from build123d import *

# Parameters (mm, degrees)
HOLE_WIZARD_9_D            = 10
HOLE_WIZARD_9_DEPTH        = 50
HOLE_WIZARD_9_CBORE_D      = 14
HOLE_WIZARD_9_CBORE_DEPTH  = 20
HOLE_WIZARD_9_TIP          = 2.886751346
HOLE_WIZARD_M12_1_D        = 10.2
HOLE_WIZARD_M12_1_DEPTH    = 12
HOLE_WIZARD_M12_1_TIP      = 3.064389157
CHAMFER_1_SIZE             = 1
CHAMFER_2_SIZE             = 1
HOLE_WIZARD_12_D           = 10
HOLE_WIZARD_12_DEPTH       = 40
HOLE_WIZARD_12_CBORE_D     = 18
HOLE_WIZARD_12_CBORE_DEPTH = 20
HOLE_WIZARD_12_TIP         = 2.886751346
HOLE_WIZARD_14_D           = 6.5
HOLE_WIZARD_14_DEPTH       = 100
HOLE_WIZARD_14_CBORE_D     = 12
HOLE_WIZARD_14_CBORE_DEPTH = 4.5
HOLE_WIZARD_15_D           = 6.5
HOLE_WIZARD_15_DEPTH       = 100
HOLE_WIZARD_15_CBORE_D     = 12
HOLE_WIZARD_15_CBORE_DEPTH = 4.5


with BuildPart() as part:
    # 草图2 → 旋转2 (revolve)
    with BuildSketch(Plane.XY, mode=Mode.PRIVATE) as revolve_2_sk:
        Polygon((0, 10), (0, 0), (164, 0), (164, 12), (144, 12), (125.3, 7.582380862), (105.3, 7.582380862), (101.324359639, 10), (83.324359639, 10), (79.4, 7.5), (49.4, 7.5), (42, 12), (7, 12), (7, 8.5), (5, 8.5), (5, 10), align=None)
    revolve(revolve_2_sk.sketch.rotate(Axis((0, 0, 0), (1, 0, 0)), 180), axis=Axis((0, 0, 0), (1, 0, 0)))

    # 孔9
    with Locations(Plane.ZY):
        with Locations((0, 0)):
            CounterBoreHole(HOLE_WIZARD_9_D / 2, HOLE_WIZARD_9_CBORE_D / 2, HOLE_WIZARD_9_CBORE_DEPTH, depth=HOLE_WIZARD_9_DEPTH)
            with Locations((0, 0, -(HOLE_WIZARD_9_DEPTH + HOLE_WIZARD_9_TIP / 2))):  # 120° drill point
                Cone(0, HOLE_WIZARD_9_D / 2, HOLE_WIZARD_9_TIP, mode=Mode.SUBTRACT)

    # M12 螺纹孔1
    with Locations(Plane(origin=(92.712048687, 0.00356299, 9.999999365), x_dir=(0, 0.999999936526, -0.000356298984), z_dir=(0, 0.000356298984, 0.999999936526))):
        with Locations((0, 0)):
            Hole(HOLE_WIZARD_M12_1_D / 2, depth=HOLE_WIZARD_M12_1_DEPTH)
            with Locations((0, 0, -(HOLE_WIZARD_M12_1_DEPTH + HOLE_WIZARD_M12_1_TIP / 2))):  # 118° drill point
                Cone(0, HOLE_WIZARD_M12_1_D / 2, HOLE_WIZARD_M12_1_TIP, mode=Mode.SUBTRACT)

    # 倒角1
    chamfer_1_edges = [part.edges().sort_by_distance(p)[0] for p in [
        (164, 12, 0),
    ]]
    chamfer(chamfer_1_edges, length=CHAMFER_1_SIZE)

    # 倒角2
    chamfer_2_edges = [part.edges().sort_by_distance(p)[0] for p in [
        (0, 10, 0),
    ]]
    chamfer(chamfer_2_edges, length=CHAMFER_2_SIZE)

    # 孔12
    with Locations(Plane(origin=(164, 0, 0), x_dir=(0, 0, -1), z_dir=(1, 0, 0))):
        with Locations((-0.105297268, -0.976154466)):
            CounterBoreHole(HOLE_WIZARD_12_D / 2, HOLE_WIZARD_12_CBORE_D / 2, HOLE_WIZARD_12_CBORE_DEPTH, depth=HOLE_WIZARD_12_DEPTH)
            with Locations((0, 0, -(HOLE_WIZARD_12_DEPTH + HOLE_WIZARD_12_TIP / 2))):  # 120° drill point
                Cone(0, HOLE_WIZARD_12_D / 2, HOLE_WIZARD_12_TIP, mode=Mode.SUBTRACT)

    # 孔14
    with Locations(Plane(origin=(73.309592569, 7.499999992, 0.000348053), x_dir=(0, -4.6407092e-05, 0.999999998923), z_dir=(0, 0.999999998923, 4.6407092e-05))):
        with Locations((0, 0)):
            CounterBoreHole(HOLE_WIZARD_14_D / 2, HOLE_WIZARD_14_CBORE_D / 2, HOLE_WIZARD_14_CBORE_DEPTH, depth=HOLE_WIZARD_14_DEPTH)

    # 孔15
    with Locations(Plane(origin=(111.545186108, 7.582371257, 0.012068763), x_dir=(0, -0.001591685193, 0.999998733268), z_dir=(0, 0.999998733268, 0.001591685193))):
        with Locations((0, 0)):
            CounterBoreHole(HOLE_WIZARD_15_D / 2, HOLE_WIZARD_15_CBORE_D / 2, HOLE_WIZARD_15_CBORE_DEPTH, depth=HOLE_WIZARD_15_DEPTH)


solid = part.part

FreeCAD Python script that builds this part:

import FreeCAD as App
import Part
import Sketcher
Q = App.Units.Quantity


def edges_at(feature, points):
    """Names of the edges that pass closest to the given points."""
    edges = feature.Shape.Edges
    near = lambda p: min(range(len(edges)), key=lambda i: edges[i].distToShape(Part.Vertex(*p))[0])
    return sorted({f"Edge{near(p) + 1}" for p in points})

doc = App.newDocument("Part")
params = doc.addObject("Spreadsheet::Sheet", "Params")
for row, (alias, value) in enumerate([
    ("sketch1_width", "164 mm"),
    ("sketch1_width2", "20 mm"),
    ("sketch1_width3", "18 mm"),
    ("sketch1_width4", "30 mm"),
    ("sketch1_width5", "35 mm"),
    ("revolution_angle", "360 deg"),
    ("sketch2_diameter", "10 mm"),
    ("hole_diameter", "10 mm"),
    ("hole_depth", "50 mm"),
    ("hole_cbore_diameter", "14 mm"),
    ("hole_cbore_depth", "20 mm"),
    ("sketch3_diameter", "10.2 mm"),
    ("hole2_diameter", "10.2 mm"),
    ("hole2_depth", "12 mm"),
    ("chamfer_size", "1 mm"),
    ("chamfer2_size", "1 mm"),
    ("sketch4_diameter", "10 mm"),
    ("hole3_diameter", "10 mm"),
    ("hole3_depth", "40 mm"),
    ("hole3_cbore_diameter", "18 mm"),
    ("hole3_cbore_depth", "20 mm"),
    ("sketch5_diameter", "6.5 mm"),
    ("hole4_diameter", "6.5 mm"),
    ("hole4_depth", "100 mm"),
    ("hole4_cbore_diameter", "12 mm"),
    ("hole4_cbore_depth", "4.5 mm"),
    ("sketch6_diameter", "6.5 mm"),
    ("hole5_diameter", "6.5 mm"),
    ("hole5_depth", "100 mm"),
    ("hole5_cbore_diameter", "12 mm"),
    ("hole5_cbore_depth", "4.5 mm"),
], start=1):
    params.set(f"A{row}", alias)
    params.set(f"B{row}", "=" + value)
    params.setAlias(f"B{row}", alias)

body = doc.addObject("PartDesign::Body", "Body")

sketch1 = body.newObject("Sketcher::SketchObject", "Sketch")
sketch1.AttachmentSupport = (doc.getObject("XY_Plane"), [""])
sketch1.MapMode = "FlatFace"
sketch1.addGeometry([
    Part.LineSegment(App.Vector(0, 10, 0), App.Vector(0, 0, 0)),
    Part.LineSegment(App.Vector(0, 0, 0), App.Vector(164, 0, 0)),
    Part.LineSegment(App.Vector(164, 0, 0), App.Vector(164, 12, 0)),
    Part.LineSegment(App.Vector(164, 12, 0), App.Vector(144, 12, 0)),
    Part.LineSegment(App.Vector(144, 12, 0), App.Vector(125.3, 7.582381, 0)),
    Part.LineSegment(App.Vector(125.3, 7.582381, 0), App.Vector(105.3, 7.582381, 0)),
    Part.LineSegment(App.Vector(105.3, 7.582381, 0), App.Vector(101.32436, 10, 0)),
    Part.LineSegment(App.Vector(101.32436, 10, 0), App.Vector(83.32436, 10, 0)),
    Part.LineSegment(App.Vector(83.32436, 10, 0), App.Vector(79.4, 7.5, 0)),
    Part.LineSegment(App.Vector(79.4, 7.5, 0), App.Vector(49.4, 7.5, 0)),
    Part.LineSegment(App.Vector(49.4, 7.5, 0), App.Vector(42, 12, 0)),
    Part.LineSegment(App.Vector(42, 12, 0), App.Vector(7, 12, 0)),
    Part.LineSegment(App.Vector(7, 12, 0), App.Vector(7, 8.5, 0)),
    Part.LineSegment(App.Vector(7, 8.5, 0), App.Vector(5, 8.5, 0)),
    Part.LineSegment(App.Vector(5, 8.5, 0), App.Vector(5, 10, 0)),
    Part.LineSegment(App.Vector(5, 10, 0), App.Vector(0, 10, 0)),
], False)
sketch1.addConstraint([
    Sketcher.Constraint("Coincident", 0, 2, 1, 1),
    Sketcher.Constraint("Coincident", 1, 2, 2, 1),
    Sketcher.Constraint("Coincident", 2, 2, 3, 1),
    Sketcher.Constraint("Coincident", 3, 2, 4, 1),
    Sketcher.Constraint("Coincident", 4, 2, 5, 1),
    Sketcher.Constraint("Coincident", 5, 2, 6, 1),
    Sketcher.Constraint("Coincident", 6, 2, 7, 1),
    Sketcher.Constraint("Coincident", 7, 2, 8, 1),
    Sketcher.Constraint("Coincident", 8, 2, 9, 1),
    Sketcher.Constraint("Coincident", 9, 2, 10, 1),
    Sketcher.Constraint("Coincident", 10, 2, 11, 1),
    Sketcher.Constraint("Coincident", 11, 2, 12, 1),
    Sketcher.Constraint("Coincident", 12, 2, 13, 1),
    Sketcher.Constraint("Coincident", 13, 2, 14, 1),
    Sketcher.Constraint("Coincident", 14, 2, 15, 1),
    Sketcher.Constraint("Coincident", 15, 2, 0, 1),
    Sketcher.Constraint("Vertical", 0),
    Sketcher.Constraint("Horizontal", 1),
    Sketcher.Constraint("Vertical", 2),
    Sketcher.Constraint("Horizontal", 3),
    Sketcher.Constraint("Horizontal", 5),
    Sketcher.Constraint("Horizontal", 7),
    Sketcher.Constraint("Horizontal", 9),
    Sketcher.Constraint("Horizontal", 11),
    Sketcher.Constraint("Vertical", 12),
    Sketcher.Constraint("Horizontal", 13),
    Sketcher.Constraint("Vertical", 14),
    Sketcher.Constraint("Horizontal", 15),
    Sketcher.Constraint("Coincident", 0, 2, -1, 1),
    Sketcher.Constraint("Parallel", 6, 10),
    Sketcher.Constraint("Horizontal", 3, 2, 10, 2),
    Sketcher.Constraint("Horizontal", 7, 2, 14, 2),
    Sketcher.Constraint("Equal", 3, 5),
    Sketcher.Constraint("Equal", 6, 8),
    Sketcher.Constraint("DistanceX", 1, 1, 1, 2, Q("164 mm")),
    Sketcher.Constraint("DistanceX", 3, 2, 3, 1, Q("20 mm")),
    Sketcher.Constraint("DistanceX", 7, 2, 7, 1, Q("18 mm")),
    Sketcher.Constraint("DistanceX", 9, 2, 9, 1, Q("30 mm")),
    Sketcher.Constraint("DistanceX", 11, 2, 11, 1, Q("35 mm")),
    Sketcher.Constraint("DistanceX", 13, 2, 13, 1, Q("2 mm")),
    Sketcher.Constraint("DistanceX", 15, 2, 15, 1, Q("5 mm")),
    Sketcher.Constraint("DistanceY", 0, 2, 0, 1, Q("10 mm")),
    Sketcher.Constraint("DistanceY", 2, 1, 2, 2, Q("12 mm")),
    Sketcher.Constraint("DistanceY", 12, 2, 12, 1, Q("3.5 mm")),
    Sketcher.Constraint("DistanceY", 9, 2, 12, 2, Q("1 mm")),
    Sketcher.Constraint("DistanceX", -1, 1, 4, 2, Q("125.3 mm")),
    Sketcher.Constraint("DistanceX", -1, 1, 8, 2, Q("79.4 mm")),
])
sketch1.setExpression("Constraints[34]", "Params.sketch1_width")
sketch1.setExpression("Constraints[35]", "Params.sketch1_width2")
sketch1.setExpression("Constraints[36]", "Params.sketch1_width3")
sketch1.setExpression("Constraints[37]", "Params.sketch1_width4")
sketch1.setExpression("Constraints[38]", "Params.sketch1_width5")
revolution = body.newObject("PartDesign::Revolution", "Revolution")
revolution.Profile = sketch1
revolution.ReferenceAxis = (sketch1, ["H_Axis"])
revolution.setExpression("Angle", "Params.revolution_angle")

sketch2 = body.newObject("Sketcher::SketchObject", "Sketch001")
sketch2.AttachmentSupport = (doc.getObject("YZ_Plane"), [""])
sketch2.MapMode = "FlatFace"
sketch2.addGeometry(Part.Circle(App.Vector(0, 0, 0), App.Vector(0, 0, 1), 5), False)
sketch2.addConstraint([
    Sketcher.Constraint("Coincident", 0, 3, -1, 1),
    Sketcher.Constraint("Diameter", 0, Q("10 mm")),
])
sketch2.setExpression("Constraints[1]", "Params.sketch2_diameter")
doc.recompute()
hole = body.newObject("PartDesign::Hole", "Hole")
hole.Profile = sketch2
hole.ThreadType = "None"
hole.setExpression("Diameter", "Params.hole_diameter")
hole.DepthType = "Dimension"
hole.setExpression("Depth", "Params.hole_depth")
hole.DrillPoint = "Angled"
hole.DrillPointAngle = 120
hole.HoleCutType = "Counterbore"
hole.setExpression("HoleCutDiameter", "Params.hole_cbore_diameter")
hole.setExpression("HoleCutDepth", "Params.hole_cbore_depth")
hole.Reversed = True

sketch3 = body.newObject("Sketcher::SketchObject", "Sketch002")
sketch3.Placement = App.Placement(App.Vector(0, 0.003563, 9.999999), App.Rotation(App.Vector(0, 0.999999937, -0.000356299), App.Vector(-1.000000001, 0, 0), App.Vector(0, 0.000356299, 0.999999937), "ZXY"))
sketch3.addGeometry(Part.Circle(App.Vector(0, -92.712049, 0), App.Vector(0, 0, 1), 5.1), False)
sketch3.addConstraint([
    Sketcher.Constraint("PointOnObject", 0, 3, -2),
    Sketcher.Constraint("Diameter", 0, Q("10.2 mm")),
    Sketcher.Constraint("DistanceY", 0, 3, -1, 1, Q("92.712049 mm")),
])
sketch3.setExpression("Constraints[1]", "Params.sketch3_diameter")
doc.recompute()
hole2 = body.newObject("PartDesign::Hole", "Hole001")
hole2.Profile = sketch3
hole2.ThreadType = "None"
hole2.setExpression("Diameter", "Params.hole2_diameter")
hole2.DepthType = "Dimension"
hole2.setExpression("Depth", "Params.hole2_depth")
hole2.DrillPoint = "Angled"
hole2.DrillPointAngle = 118
doc.recompute()

chamfer = body.newObject("PartDesign::Chamfer", "Chamfer")
chamfer.Base = (hole2, edges_at(hole2, [(164, 12, 0)]))
chamfer.setExpression("Size", "Params.chamfer_size")
doc.recompute()

chamfer2 = body.newObject("PartDesign::Chamfer", "Chamfer001")
chamfer2.Base = (chamfer, edges_at(chamfer, [(0, 10, 0)]))
chamfer2.setExpression("Size", "Params.chamfer2_size")

sketch4 = body.newObject("Sketcher::SketchObject", "Sketch003")
sketch4.AttachmentSupport = (doc.getObject("YZ_Plane"), [""])
sketch4.MapMode = "FlatFace"
sketch4.AttachmentOffset = App.Placement(App.Vector(0, 0, 164), App.Rotation())
sketch4.addGeometry(Part.Circle(App.Vector(-0.976154, 0.105297, 0), App.Vector(0, 0, 1), 5), False)
sketch4.addConstraint([
    Sketcher.Constraint("Diameter", 0, Q("10 mm")),
    Sketcher.Constraint("DistanceX", 0, 3, -1, 1, Q("0.976154 mm")),
    Sketcher.Constraint("DistanceY", -1, 1, 0, 3, Q("0.105297 mm")),
])
sketch4.setExpression("Constraints[0]", "Params.sketch4_diameter")
doc.recompute()
hole3 = body.newObject("PartDesign::Hole", "Hole002")
hole3.Profile = sketch4
hole3.ThreadType = "None"
hole3.setExpression("Diameter", "Params.hole3_diameter")
hole3.DepthType = "Dimension"
hole3.setExpression("Depth", "Params.hole3_depth")
hole3.DrillPoint = "Angled"
hole3.DrillPointAngle = 120
hole3.HoleCutType = "Counterbore"
hole3.setExpression("HoleCutDiameter", "Params.hole3_cbore_diameter")
hole3.setExpression("HoleCutDepth", "Params.hole3_cbore_depth")

sketch5 = body.newObject("Sketcher::SketchObject", "Sketch004")
sketch5.AttachmentSupport = (doc.getObject("XZ_Plane"), [""])
sketch5.MapMode = "FlatFace"
sketch5.AttachmentOffset = App.Placement(App.Vector(0, 0, -7.5), App.Rotation())
sketch5.addGeometry(Part.Circle(App.Vector(73.309593, 0.000348, 0), App.Vector(0, 0, 1), 3.25), False)
sketch5.addConstraint([
    Sketcher.Constraint("Diameter", 0, Q("6.5 mm")),
    Sketcher.Constraint("DistanceY", -1, 1, 0, 3, Q("0.000348 mm")),
    Sketcher.Constraint("DistanceX", -1, 1, 0, 3, Q("73.309593 mm")),
])
sketch5.setExpression("Constraints[0]", "Params.sketch5_diameter")
doc.recompute()
hole4 = body.newObject("PartDesign::Hole", "Hole003")
hole4.Profile = sketch5
hole4.ThreadType = "None"
hole4.setExpression("Diameter", "Params.hole4_diameter")
hole4.DepthType = "Dimension"
hole4.setExpression("Depth", "Params.hole4_depth")
hole4.DrillPoint = "Flat"
hole4.HoleCutType = "Counterbore"
hole4.setExpression("HoleCutDiameter", "Params.hole4_cbore_diameter")
hole4.setExpression("HoleCutDepth", "Params.hole4_cbore_depth")
hole4.Reversed = True

sketch6 = body.newObject("Sketcher::SketchObject", "Sketch005")
sketch6.Placement = App.Placement(App.Vector(0, 7.582371, 0.012069), App.Rotation(App.Vector(0, -0.001591685, 0.999998733), App.Vector(0.999999999, 0, 0), App.Vector(0, 0.999998733, 0.001591685), "ZXY"))
sketch6.addGeometry(Part.Circle(App.Vector(0, 111.545186, 0), App.Vector(0, 0, 1), 3.25), False)
sketch6.addConstraint([
    Sketcher.Constraint("PointOnObject", 0, 3, -2),
    Sketcher.Constraint("Diameter", 0, Q("6.5 mm")),
    Sketcher.Constraint("DistanceY", -1, 1, 0, 3, Q("111.545186 mm")),
])
sketch6.setExpression("Constraints[1]", "Params.sketch6_diameter")
doc.recompute()
hole5 = body.newObject("PartDesign::Hole", "Hole004")
hole5.Profile = sketch6
hole5.ThreadType = "None"
hole5.setExpression("Diameter", "Params.hole5_diameter")
hole5.DepthType = "Dimension"
hole5.setExpression("Depth", "Params.hole5_depth")
hole5.DrillPoint = "Flat"
hole5.HoleCutType = "Counterbore"
hole5.setExpression("HoleCutDiameter", "Params.hole5_cbore_diameter")
hole5.setExpression("HoleCutDepth", "Params.hole5_cbore_depth")

doc.recompute()
